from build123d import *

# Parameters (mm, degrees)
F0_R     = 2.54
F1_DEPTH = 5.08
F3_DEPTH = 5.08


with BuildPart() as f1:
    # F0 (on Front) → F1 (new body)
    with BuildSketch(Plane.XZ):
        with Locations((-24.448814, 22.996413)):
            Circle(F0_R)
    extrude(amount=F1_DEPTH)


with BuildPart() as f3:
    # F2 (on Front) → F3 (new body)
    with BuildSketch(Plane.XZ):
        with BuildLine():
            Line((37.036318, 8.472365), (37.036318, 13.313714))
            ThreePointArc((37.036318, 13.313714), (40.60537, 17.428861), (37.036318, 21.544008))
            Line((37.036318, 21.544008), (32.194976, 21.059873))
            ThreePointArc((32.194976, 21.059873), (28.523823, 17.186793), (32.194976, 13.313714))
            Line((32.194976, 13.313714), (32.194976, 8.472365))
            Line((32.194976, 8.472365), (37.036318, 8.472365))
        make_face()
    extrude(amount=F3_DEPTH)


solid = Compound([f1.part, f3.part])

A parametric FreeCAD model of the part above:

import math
import FreeCAD as App
import Part
import Sketcher
Q = App.Units.Quantity

doc = App.newDocument("Part")
body = doc.addObject("PartDesign::Body", "Body")

# Sketch on XZ plane
sketch1 = body.newObject("Sketcher::SketchObject", "Sketch")
sketch1.AttachmentSupport = (doc.getObject("XZ_Plane"), [""])
sketch1.MapMode = "FlatFace"
sketch1.addGeometry(Part.Circle(App.Vector(-24.448814, 22.996413, 0), App.Vector(0, 0, 1), 2.54), False)
sketch1.addConstraint([
    Sketcher.Constraint("Diameter", 0, Q("0.2 in")),
    Sketcher.Constraint("DistanceX", 0, 3, -1, 1, Q("24.448814 mm")),
    Sketcher.Constraint("DistanceY", -1, 1, 0, 3, Q("22.996413 mm")),
])
pad1 = body.newObject("PartDesign::Pad", "Pad")
pad1.Profile = sketch1
pad1.Length = Q("0.2 in")
body2 = doc.addObject("PartDesign::Body", "Body001")

# Sketch on XZ plane
sketch2 = body2.newObject("Sketcher::SketchObject", "Sketch001")
sketch2.AttachmentSupport = (doc.getObject("XZ_Plane001"), [""])
sketch2.MapMode = "FlatFace"
sketch2.addGeometry([
    Part.LineSegment(App.Vector(37.036318, 8.472365, 0), App.Vector(37.036318, 13.313714, 0)),  # 0
    Part.ArcOfCircle(Part.Circle(App.Vector(36.448444, 17.428861, 0), App.Vector(0, 0, 1), 4.156926), math.radians(-81.86996), math.radians(81.86996)),  # 1
    Part.LineSegment(App.Vector(37.036318, 21.544008, 0), App.Vector(32.194976, 21.059873, 0)),  # 2
    Part.ArcOfCircle(Part.Circle(App.Vector(32.402456, 17.186794, 0), App.Vector(0, 0, 1), 3.878633), math.radians(93.066389), math.radians(266.933611)),  # 3
    Part.LineSegment(App.Vector(32.194976, 13.313714, 0), App.Vector(32.194976, 8.472365, 0)),  # 4
    Part.LineSegment(App.Vector(32.194976, 8.472365, 0), App.Vector(37.036318, 8.472365, 0)),  # 5
], False)
sketch2.addConstraint([
    Sketcher.Constraint("Coincident", 0, 2, 1, 1),
    Sketcher.Constraint("Coincident", 1, 2, 2, 1),
    Sketcher.Constraint("Coincident", 2, 2, 3, 1),
    Sketcher.Constraint("Coincident", 3, 2, 4, 1),
    Sketcher.Constraint("Coincident", 4, 2, 5, 1),
    Sketcher.Constraint("Coincident", 5, 2, 0, 1),
    Sketcher.Constraint("Vertical", 0),
    Sketcher.Constraint("Vertical", 4),
    Sketcher.Constraint("Horizontal", 5),
    Sketcher.Constraint("Radius", 1, Q("4.156926 mm")),
    Sketcher.Constraint("Radius", 3, Q("3.878633 mm")),
    Sketcher.Constraint("DistanceY", 0, 1, 0, 2, Q("4.841349 mm")),
    Sketcher.Constraint("DistanceY", 4, 2, 4, 1, Q("4.841349 mm")),
    Sketcher.Constraint("Distance", 2, Q("4.865489 mm")),
    Sketcher.Constraint("DistanceX", 5, 1, 5, 2, Q("4.841342 mm")),
    Sketcher.Constraint("DistanceY", -1, 1, 1, 3, Q("17.428861 mm")),
    Sketcher.Constraint("DistanceX", -1, 1, 1, 2, Q("37.036318 mm")),
    Sketcher.Constraint("DistanceY", -1, 1, 1, 2, Q("21.544008 mm")),
    Sketcher.Constraint("DistanceX", 3, 3, 1, 3, Q("4.045989 mm")),
    Sketcher.Constraint("DistanceY", 0, 2, 3, 3, Q("3.87308 mm")),
])
pad2 = body2.newObject("PartDesign::Pad", "Pad001")
pad2.Profile = sketch2
pad2.Length = Q("0.2 in")

doc.recompute()
